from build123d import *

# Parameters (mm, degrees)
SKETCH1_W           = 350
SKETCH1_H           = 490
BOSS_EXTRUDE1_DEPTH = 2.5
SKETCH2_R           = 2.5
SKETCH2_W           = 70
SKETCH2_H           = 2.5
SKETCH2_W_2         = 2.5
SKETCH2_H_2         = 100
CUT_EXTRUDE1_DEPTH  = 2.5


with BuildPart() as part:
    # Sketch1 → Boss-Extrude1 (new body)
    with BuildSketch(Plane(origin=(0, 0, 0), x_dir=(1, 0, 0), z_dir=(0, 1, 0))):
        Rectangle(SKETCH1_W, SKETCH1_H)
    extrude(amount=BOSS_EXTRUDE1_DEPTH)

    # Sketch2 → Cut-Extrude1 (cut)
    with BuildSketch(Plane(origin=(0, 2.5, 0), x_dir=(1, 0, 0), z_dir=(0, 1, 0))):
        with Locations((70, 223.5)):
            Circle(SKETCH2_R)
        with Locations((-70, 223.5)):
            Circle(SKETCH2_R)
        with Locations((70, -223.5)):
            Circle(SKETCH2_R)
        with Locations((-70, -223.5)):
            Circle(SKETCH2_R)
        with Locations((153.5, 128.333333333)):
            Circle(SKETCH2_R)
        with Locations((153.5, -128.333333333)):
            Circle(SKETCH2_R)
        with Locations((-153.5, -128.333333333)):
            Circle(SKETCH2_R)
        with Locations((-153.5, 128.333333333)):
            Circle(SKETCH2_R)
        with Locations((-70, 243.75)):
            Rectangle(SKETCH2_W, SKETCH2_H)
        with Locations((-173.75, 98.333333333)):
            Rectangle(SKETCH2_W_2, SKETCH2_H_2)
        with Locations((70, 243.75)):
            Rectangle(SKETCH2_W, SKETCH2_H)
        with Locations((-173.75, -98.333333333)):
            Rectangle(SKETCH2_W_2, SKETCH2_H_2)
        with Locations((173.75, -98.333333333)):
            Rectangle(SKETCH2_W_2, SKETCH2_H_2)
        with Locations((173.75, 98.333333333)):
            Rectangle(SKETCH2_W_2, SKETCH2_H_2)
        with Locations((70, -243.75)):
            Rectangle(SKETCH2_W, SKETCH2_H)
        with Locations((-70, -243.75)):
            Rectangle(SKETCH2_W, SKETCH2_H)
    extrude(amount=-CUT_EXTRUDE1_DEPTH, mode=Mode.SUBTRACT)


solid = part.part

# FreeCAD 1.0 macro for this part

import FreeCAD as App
import Part
import Sketcher
from FreeCAD import Vector
Q = App.Units.Quantity

doc = App.newDocument("Part")
body = doc.addObject("PartDesign::Body", "Body")

# Sketch on XZ plane
sketch1 = doc.addObject("Sketcher::SketchObject", "Sketch")
body.addObject(sketch1)
sketch1.AttachmentSupport = (doc.XZ_Plane, [""])
sketch1.MapMode = "FlatFace"
sketch1.addGeometry([
    Part.LineSegment(Vector(-175, -245, 0), Vector(-175, 245, 0)),
    Part.LineSegment(Vector(-175, 245, 0), Vector(175, 245, 0)),
    Part.LineSegment(Vector(175, 245, 0), Vector(175, -245, 0)),
    Part.LineSegment(Vector(175, -245, 0), Vector(-175, -245, 0)),
], False)
sketch1.addConstraint([
    Sketcher.Constraint("Coincident", 0, 2, 1, 1),
    Sketcher.Constraint("Coincident", 1, 2, 2, 1),
    Sketcher.Constraint("Coincident", 2, 2, 3, 1),
    Sketcher.Constraint("Coincident", 3, 2, 0, 1),
    Sketcher.Constraint("Vertical", 0),
    Sketcher.Constraint("Horizontal", 1),
    Sketcher.Constraint("Vertical", 2),
    Sketcher.Constraint("Horizontal", 3),
    Sketcher.Constraint("Symmetric", 0, 2, 2, 2, -1, 1),
    Sketcher.Constraint("DistanceX", 1, 1, 1, 2, Q("350 mm")),
    Sketcher.Constraint("DistanceY", 0, 1, 0, 2, Q("490 mm")),
])
pad1 = doc.addObject("PartDesign::Pad", "Pad")
body.addObject(pad1)
pad1.Profile = sketch1
pad1.Length = 2.5
pad1.Reversed = True

# Sketch on XZ plane
sketch2 = doc.addObject("Sketcher::SketchObject", "Sketch001")
body.addObject(sketch2)
sketch2.AttachmentSupport = (doc.XZ_Plane, [""])
sketch2.MapMode = "FlatFace"
sketch2.AttachmentOffset = App.Placement(Vector(0, 0, -2.5), App.Rotation())
sketch2.addGeometry([
    Part.Circle(Vector(70, -223.5, 0), Vector(0, 0, 1), 2.5),  # 0
    Part.Circle(Vector(-70, -223.5, 0), Vector(0, 0, 1), 2.5),  # 1
    Part.Circle(Vector(70, 223.5, 0), Vector(0, 0, 1), 2.5),  # 2
    Part.Circle(Vector(-70, 223.5, 0), Vector(0, 0, 1), 2.5),  # 3
    Part.Circle(Vector(153.5, -128.3, 0), Vector(0, 0, 1), 2.5),  # 4
    Part.Circle(Vector(153.5, 128.3, 0), Vector(0, 0, 1), 2.5),  # 5
    Part.Circle(Vector(-153.5, 128.3, 0), Vector(0, 0, 1), 2.5),  # 6
    Part.Circle(Vector(-153.5, -128.3, 0), Vector(0, 0, 1), 2.5),  # 7
    Part.LineSegment(Vector(-105, -245, 0), Vector(-105, -242.5, 0)),  # 8
    Part.LineSegment(Vector(-105, -242.5, 0), Vector(-35, -242.5, 0)),  # 9
    Part.LineSegment(Vector(-35, -242.5, 0), Vector(-35, -245, 0)),  # 10
    Part.LineSegment(Vector(-35, -245, 0), Vector(-105, -245, 0)),  # 11
    Part.LineSegment(Vector(-175, -148.3, 0), Vector(-175, -48.3, 0)),  # 12
    Part.LineSegment(Vector(-175, -48.3, 0), Vector(-172.5, -48.3, 0)),  # 13
    Part.LineSegment(Vector(-172.5, -48.3, 0), Vector(-172.5, -148.3, 0)),  # 14
    Part.LineSegment(Vector(-172.5, -148.3, 0), Vector(-175, -148.3, 0)),  # 15
    Part.LineSegment(Vector(35, -245, 0), Vector(35, -242.5, 0)),  # 16
    Part.LineSegment(Vector(35, -242.5, 0), Vector(105, -242.5, 0)),  # 17
    Part.LineSegment(Vector(105, -242.5, 0), Vector(105, -245, 0)),  # 18
    Part.LineSegment(Vector(105, -245, 0), Vector(35, -245, 0)),  # 19
    Part.LineSegment(Vector(-175, 48.3, 0), Vector(-175, 148.3, 0)),  # 20
    Part.LineSegment(Vector(-175, 148.3, 0), Vector(-172.5, 148.3, 0)),  # 21
    Part.LineSegment(Vector(-172.5, 148.3, 0), Vector(-172.5, 48.3, 0)),  # 22
    Part.LineSegment(Vector(-172.5, 48.3, 0), Vector(-175, 48.3, 0)),  # 23
    Part.LineSegment(Vector(172.5, 48.3, 0), Vector(172.5, 148.3, 0)),  # 24
    Part.LineSegment(Vector(172.5, 148.3, 0), Vector(175, 148.3, 0)),  # 25
    Part.LineSegment(Vector(175, 148.3, 0), Vector(175, 48.3, 0)),  # 26
    Part.LineSegment(Vector(175, 48.3, 0), Vector(172.5, 48.3, 0)),  # 27
    Part.LineSegment(Vector(172.5, -148.3, 0), Vector(172.5, -48.3, 0)),  # 28
    Part.LineSegment(Vector(172.5, -48.3, 0), Vector(175, -48.3, 0)),  # 29
    Part.LineSegment(Vector(175, -48.3, 0), Vector(175, -148.3, 0)),  # 30
    Part.LineSegment(Vector(175, -148.3, 0), Vector(172.5, -148.3, 0)),  # 31
    Part.LineSegment(Vector(35, 242.5, 0), Vector(35, 245, 0)),  # 32
    Part.LineSegment(Vector(35, 245, 0), Vector(105, 245, 0)),  # 33
    Part.LineSegment(Vector(105, 245, 0), Vector(105, 242.5, 0)),  # 34
    Part.LineSegment(Vector(105, 242.5, 0), Vector(35, 242.5, 0)),  # 35
    Part.LineSegment(Vector(-105, 242.5, 0), Vector(-105, 245, 0)),  # 36
    Part.LineSegment(Vector(-105, 245, 0), Vector(-35, 245, 0)),  # 37
    Part.LineSegment(Vector(-35, 245, 0), Vector(-35, 242.5, 0)),  # 38
    Part.LineSegment(Vector(-35, 242.5, 0), Vector(-105, 242.5, 0)),  # 39
], False)
sketch2.addConstraint([
    Sketcher.Constraint("Coincident", 8, 2, 9, 1),
    Sketcher.Constraint("Coincident", 9, 2, 10, 1),
    Sketcher.Constraint("Coincident", 10, 2, 11, 1),
    Sketcher.Constraint("Coincident", 11, 2, 8, 1),
    Sketcher.Constraint("Coincident", 12, 2, 13, 1),
    Sketcher.Constraint("Coincident", 13, 2, 14, 1),
    Sketcher.Constraint("Coincident", 14, 2, 15, 1),
    Sketcher.Constraint("Coincident", 15, 2, 12, 1),
    Sketcher.Constraint("Coincident", 16, 2, 17, 1),
    Sketcher.Constraint("Coincident", 17, 2, 18, 1),
    Sketcher.Constraint("Coincident", 18, 2, 19, 1),
    Sketcher.Constraint("Coincident", 19, 2, 16, 1),
    Sketcher.Constraint("Coincident", 20, 2, 21, 1),
    Sketcher.Constraint("Coincident", 21, 2, 22, 1),
    Sketcher.Constraint("Coincident", 22, 2, 23, 1),
    Sketcher.Constraint("Coincident", 23, 2, 20, 1),
    Sketcher.Constraint("Coincident", 24, 2, 25, 1),
    Sketcher.Constraint("Coincident", 25, 2, 26, 1),
    Sketcher.Constraint("Coincident", 26, 2, 27, 1),
    Sketcher.Constraint("Coincident", 27, 2, 24, 1),
    Sketcher.Constraint("Coincident", 28, 2, 29, 1),
    Sketcher.Constraint("Coincident", 29, 2, 30, 1),
    Sketcher.Constraint("Coincident", 30, 2, 31, 1),
    Sketcher.Constraint("Coincident", 31, 2, 28, 1),
    Sketcher.Constraint("Coincident", 32, 2, 33, 1),
    Sketcher.Constraint("Coincident", 33, 2, 34, 1),
    Sketcher.Constraint("Coincident", 34, 2, 35, 1),
    Sketcher.Constraint("Coincident", 35, 2, 32, 1),
    Sketcher.Constraint("Coincident", 36, 2, 37, 1),
    Sketcher.Constraint("Coincident", 37, 2, 38, 1),
    Sketcher.Constraint("Coincident", 38, 2, 39, 1),
    Sketcher.Constraint("Coincident", 39, 2, 36, 1),
    Sketcher.Constraint("Vertical", 8),
    Sketcher.Constraint("Horizontal", 9),
    Sketcher.Constraint("Vertical", 10),
    Sketcher.Constraint("Horizontal", 11),
    Sketcher.Constraint("Vertical", 12),
    Sketcher.Constraint("Horizontal", 13),
    Sketcher.Constraint("Vertical", 14),
    Sketcher.Constraint("Horizontal", 15),
    Sketcher.Constraint("Vertical", 16),
    Sketcher.Constraint("Horizontal", 17),
    Sketcher.Constraint("Vertical", 18),
    Sketcher.Constraint("Horizontal", 19),
    Sketcher.Constraint("Vertical", 20),
    Sketcher.Constraint("Horizontal", 21),
    Sketcher.Constraint("Vertical", 22),
    Sketcher.Constraint("Horizontal", 23),
    Sketcher.Constraint("Vertical", 24),
    Sketcher.Constraint("Horizontal", 25),
    Sketcher.Constraint("Vertical", 26),
    Sketcher.Constraint("Horizontal", 27),
    Sketcher.Constraint("Vertical", 28),
    Sketcher.Constraint("Horizontal", 29),
    Sketcher.Constraint("Vertical", 30),
    Sketcher.Constraint("Horizontal", 31),
    Sketcher.Constraint("Vertical", 32),
    Sketcher.Constraint("Horizontal", 33),
    Sketcher.Constraint("Vertical", 34),
    Sketcher.Constraint("Horizontal", 35),
    Sketcher.Constraint("Vertical", 36),
    Sketcher.Constraint("Horizontal", 37),
    Sketcher.Constraint("Vertical", 38),
    Sketcher.Constraint("Horizontal", 39),
    Sketcher.Constraint("Equal", 0, 1),
    Sketcher.Constraint("Equal", 1, 2),
    Sketcher.Constraint("Equal", 2, 3),
    Sketcher.Constraint("Equal", 3, 4),
    Sketcher.Constraint("Equal", 4, 5),
    Sketcher.Constraint("Equal", 5, 6),
    Sketcher.Constraint("Equal", 6, 7),
    Sketcher.Constraint("Symmetric", 1, 3, 2, 3, -1, 1),
    Sketcher.Constraint("Symmetric", 0, 3, 3, 3, -1, 1),
    Sketcher.Constraint("Symmetric", 4, 3, 6, 3, -1, 1),
    Sketcher.Constraint("Symmetric", 5, 3, 7, 3, -1, 1),
    Sketcher.Constraint("Symmetric", 14, 2, 24, 2, -1, 1),
    Sketcher.Constraint("Symmetric", 12, 2, 26, 2, -1, 1),
    Sketcher.Constraint("Symmetric", 22, 2, 28, 2, -1, 1),
    Sketcher.Constraint("Symmetric", 20, 2, 30, 2, -1, 1),
    Sketcher.Constraint("Symmetric", 10, 2, 32, 2, -1, 1),
    Sketcher.Constraint("Symmetric", 8, 2, 34, 2, -1, 1),
    Sketcher.Constraint("Symmetric", 18, 2, 36, 2, -1, 1),
    Sketcher.Constraint("Symmetric", 16, 2, 38, 2, -1, 1),
    Sketcher.Constraint("Symmetric", 0, 3, 1, 3, -2),
    Sketcher.Constraint("Symmetric", 5, 3, 6, 3, -2),
    Sketcher.Constraint("Symmetric", 9, 2, 16, 2, -2),
    Sketcher.Constraint("Symmetric", 11, 2, 18, 2, -2),
    Sketcher.Constraint("Symmetric", 21, 2, 24, 2, -2),
    Sketcher.Constraint("Symmetric", 23, 2, 26, 2, -2),
    Sketcher.Constraint("Equal", 31, 8),
    Sketcher.Constraint("Diameter", 0, Q("5 mm")),
    Sketcher.Constraint("DistanceX", 9, 1, 9, 2, Q("70 mm")),
    Sketcher.Constraint("DistanceY", 12, 1, 12, 2, Q("100 mm")),
    Sketcher.Constraint("DistanceX", 13, 1, 13, 2, Q("2.5 mm")),
    Sketcher.Constraint("DistanceX", -1, 1, 0, 3, Q("70 mm")),
    Sketcher.Constraint("DistanceX", 8, 2, -1, 1, Q("105 mm")),
    Sketcher.Constraint("DistanceY", 10, 2, -1, 1, Q("245 mm")),
    Sketcher.Constraint("DistanceX", 12, 2, -1, 1, Q("175 mm")),
    Sketcher.Constraint("DistanceY", 0, 3, 2, 3, Q("447 mm")),
    Sketcher.Constraint("DistanceX", 6, 3, 5, 3, Q("307 mm")),
    Sketcher.Constraint("DistanceY", 7, 3, 12, 2, Q("80 mm")),
    Sketcher.Constraint("DistanceY", 4, 3, -1, 1, Q("128.333333 mm")),
])
pocket1 = doc.addObject("PartDesign::Pocket", "Pocket")
body.addObject(pocket1)
pocket1.Profile = sketch2
pocket1.Length = 2.5
pocket1.Reversed = True

doc.recompute()
